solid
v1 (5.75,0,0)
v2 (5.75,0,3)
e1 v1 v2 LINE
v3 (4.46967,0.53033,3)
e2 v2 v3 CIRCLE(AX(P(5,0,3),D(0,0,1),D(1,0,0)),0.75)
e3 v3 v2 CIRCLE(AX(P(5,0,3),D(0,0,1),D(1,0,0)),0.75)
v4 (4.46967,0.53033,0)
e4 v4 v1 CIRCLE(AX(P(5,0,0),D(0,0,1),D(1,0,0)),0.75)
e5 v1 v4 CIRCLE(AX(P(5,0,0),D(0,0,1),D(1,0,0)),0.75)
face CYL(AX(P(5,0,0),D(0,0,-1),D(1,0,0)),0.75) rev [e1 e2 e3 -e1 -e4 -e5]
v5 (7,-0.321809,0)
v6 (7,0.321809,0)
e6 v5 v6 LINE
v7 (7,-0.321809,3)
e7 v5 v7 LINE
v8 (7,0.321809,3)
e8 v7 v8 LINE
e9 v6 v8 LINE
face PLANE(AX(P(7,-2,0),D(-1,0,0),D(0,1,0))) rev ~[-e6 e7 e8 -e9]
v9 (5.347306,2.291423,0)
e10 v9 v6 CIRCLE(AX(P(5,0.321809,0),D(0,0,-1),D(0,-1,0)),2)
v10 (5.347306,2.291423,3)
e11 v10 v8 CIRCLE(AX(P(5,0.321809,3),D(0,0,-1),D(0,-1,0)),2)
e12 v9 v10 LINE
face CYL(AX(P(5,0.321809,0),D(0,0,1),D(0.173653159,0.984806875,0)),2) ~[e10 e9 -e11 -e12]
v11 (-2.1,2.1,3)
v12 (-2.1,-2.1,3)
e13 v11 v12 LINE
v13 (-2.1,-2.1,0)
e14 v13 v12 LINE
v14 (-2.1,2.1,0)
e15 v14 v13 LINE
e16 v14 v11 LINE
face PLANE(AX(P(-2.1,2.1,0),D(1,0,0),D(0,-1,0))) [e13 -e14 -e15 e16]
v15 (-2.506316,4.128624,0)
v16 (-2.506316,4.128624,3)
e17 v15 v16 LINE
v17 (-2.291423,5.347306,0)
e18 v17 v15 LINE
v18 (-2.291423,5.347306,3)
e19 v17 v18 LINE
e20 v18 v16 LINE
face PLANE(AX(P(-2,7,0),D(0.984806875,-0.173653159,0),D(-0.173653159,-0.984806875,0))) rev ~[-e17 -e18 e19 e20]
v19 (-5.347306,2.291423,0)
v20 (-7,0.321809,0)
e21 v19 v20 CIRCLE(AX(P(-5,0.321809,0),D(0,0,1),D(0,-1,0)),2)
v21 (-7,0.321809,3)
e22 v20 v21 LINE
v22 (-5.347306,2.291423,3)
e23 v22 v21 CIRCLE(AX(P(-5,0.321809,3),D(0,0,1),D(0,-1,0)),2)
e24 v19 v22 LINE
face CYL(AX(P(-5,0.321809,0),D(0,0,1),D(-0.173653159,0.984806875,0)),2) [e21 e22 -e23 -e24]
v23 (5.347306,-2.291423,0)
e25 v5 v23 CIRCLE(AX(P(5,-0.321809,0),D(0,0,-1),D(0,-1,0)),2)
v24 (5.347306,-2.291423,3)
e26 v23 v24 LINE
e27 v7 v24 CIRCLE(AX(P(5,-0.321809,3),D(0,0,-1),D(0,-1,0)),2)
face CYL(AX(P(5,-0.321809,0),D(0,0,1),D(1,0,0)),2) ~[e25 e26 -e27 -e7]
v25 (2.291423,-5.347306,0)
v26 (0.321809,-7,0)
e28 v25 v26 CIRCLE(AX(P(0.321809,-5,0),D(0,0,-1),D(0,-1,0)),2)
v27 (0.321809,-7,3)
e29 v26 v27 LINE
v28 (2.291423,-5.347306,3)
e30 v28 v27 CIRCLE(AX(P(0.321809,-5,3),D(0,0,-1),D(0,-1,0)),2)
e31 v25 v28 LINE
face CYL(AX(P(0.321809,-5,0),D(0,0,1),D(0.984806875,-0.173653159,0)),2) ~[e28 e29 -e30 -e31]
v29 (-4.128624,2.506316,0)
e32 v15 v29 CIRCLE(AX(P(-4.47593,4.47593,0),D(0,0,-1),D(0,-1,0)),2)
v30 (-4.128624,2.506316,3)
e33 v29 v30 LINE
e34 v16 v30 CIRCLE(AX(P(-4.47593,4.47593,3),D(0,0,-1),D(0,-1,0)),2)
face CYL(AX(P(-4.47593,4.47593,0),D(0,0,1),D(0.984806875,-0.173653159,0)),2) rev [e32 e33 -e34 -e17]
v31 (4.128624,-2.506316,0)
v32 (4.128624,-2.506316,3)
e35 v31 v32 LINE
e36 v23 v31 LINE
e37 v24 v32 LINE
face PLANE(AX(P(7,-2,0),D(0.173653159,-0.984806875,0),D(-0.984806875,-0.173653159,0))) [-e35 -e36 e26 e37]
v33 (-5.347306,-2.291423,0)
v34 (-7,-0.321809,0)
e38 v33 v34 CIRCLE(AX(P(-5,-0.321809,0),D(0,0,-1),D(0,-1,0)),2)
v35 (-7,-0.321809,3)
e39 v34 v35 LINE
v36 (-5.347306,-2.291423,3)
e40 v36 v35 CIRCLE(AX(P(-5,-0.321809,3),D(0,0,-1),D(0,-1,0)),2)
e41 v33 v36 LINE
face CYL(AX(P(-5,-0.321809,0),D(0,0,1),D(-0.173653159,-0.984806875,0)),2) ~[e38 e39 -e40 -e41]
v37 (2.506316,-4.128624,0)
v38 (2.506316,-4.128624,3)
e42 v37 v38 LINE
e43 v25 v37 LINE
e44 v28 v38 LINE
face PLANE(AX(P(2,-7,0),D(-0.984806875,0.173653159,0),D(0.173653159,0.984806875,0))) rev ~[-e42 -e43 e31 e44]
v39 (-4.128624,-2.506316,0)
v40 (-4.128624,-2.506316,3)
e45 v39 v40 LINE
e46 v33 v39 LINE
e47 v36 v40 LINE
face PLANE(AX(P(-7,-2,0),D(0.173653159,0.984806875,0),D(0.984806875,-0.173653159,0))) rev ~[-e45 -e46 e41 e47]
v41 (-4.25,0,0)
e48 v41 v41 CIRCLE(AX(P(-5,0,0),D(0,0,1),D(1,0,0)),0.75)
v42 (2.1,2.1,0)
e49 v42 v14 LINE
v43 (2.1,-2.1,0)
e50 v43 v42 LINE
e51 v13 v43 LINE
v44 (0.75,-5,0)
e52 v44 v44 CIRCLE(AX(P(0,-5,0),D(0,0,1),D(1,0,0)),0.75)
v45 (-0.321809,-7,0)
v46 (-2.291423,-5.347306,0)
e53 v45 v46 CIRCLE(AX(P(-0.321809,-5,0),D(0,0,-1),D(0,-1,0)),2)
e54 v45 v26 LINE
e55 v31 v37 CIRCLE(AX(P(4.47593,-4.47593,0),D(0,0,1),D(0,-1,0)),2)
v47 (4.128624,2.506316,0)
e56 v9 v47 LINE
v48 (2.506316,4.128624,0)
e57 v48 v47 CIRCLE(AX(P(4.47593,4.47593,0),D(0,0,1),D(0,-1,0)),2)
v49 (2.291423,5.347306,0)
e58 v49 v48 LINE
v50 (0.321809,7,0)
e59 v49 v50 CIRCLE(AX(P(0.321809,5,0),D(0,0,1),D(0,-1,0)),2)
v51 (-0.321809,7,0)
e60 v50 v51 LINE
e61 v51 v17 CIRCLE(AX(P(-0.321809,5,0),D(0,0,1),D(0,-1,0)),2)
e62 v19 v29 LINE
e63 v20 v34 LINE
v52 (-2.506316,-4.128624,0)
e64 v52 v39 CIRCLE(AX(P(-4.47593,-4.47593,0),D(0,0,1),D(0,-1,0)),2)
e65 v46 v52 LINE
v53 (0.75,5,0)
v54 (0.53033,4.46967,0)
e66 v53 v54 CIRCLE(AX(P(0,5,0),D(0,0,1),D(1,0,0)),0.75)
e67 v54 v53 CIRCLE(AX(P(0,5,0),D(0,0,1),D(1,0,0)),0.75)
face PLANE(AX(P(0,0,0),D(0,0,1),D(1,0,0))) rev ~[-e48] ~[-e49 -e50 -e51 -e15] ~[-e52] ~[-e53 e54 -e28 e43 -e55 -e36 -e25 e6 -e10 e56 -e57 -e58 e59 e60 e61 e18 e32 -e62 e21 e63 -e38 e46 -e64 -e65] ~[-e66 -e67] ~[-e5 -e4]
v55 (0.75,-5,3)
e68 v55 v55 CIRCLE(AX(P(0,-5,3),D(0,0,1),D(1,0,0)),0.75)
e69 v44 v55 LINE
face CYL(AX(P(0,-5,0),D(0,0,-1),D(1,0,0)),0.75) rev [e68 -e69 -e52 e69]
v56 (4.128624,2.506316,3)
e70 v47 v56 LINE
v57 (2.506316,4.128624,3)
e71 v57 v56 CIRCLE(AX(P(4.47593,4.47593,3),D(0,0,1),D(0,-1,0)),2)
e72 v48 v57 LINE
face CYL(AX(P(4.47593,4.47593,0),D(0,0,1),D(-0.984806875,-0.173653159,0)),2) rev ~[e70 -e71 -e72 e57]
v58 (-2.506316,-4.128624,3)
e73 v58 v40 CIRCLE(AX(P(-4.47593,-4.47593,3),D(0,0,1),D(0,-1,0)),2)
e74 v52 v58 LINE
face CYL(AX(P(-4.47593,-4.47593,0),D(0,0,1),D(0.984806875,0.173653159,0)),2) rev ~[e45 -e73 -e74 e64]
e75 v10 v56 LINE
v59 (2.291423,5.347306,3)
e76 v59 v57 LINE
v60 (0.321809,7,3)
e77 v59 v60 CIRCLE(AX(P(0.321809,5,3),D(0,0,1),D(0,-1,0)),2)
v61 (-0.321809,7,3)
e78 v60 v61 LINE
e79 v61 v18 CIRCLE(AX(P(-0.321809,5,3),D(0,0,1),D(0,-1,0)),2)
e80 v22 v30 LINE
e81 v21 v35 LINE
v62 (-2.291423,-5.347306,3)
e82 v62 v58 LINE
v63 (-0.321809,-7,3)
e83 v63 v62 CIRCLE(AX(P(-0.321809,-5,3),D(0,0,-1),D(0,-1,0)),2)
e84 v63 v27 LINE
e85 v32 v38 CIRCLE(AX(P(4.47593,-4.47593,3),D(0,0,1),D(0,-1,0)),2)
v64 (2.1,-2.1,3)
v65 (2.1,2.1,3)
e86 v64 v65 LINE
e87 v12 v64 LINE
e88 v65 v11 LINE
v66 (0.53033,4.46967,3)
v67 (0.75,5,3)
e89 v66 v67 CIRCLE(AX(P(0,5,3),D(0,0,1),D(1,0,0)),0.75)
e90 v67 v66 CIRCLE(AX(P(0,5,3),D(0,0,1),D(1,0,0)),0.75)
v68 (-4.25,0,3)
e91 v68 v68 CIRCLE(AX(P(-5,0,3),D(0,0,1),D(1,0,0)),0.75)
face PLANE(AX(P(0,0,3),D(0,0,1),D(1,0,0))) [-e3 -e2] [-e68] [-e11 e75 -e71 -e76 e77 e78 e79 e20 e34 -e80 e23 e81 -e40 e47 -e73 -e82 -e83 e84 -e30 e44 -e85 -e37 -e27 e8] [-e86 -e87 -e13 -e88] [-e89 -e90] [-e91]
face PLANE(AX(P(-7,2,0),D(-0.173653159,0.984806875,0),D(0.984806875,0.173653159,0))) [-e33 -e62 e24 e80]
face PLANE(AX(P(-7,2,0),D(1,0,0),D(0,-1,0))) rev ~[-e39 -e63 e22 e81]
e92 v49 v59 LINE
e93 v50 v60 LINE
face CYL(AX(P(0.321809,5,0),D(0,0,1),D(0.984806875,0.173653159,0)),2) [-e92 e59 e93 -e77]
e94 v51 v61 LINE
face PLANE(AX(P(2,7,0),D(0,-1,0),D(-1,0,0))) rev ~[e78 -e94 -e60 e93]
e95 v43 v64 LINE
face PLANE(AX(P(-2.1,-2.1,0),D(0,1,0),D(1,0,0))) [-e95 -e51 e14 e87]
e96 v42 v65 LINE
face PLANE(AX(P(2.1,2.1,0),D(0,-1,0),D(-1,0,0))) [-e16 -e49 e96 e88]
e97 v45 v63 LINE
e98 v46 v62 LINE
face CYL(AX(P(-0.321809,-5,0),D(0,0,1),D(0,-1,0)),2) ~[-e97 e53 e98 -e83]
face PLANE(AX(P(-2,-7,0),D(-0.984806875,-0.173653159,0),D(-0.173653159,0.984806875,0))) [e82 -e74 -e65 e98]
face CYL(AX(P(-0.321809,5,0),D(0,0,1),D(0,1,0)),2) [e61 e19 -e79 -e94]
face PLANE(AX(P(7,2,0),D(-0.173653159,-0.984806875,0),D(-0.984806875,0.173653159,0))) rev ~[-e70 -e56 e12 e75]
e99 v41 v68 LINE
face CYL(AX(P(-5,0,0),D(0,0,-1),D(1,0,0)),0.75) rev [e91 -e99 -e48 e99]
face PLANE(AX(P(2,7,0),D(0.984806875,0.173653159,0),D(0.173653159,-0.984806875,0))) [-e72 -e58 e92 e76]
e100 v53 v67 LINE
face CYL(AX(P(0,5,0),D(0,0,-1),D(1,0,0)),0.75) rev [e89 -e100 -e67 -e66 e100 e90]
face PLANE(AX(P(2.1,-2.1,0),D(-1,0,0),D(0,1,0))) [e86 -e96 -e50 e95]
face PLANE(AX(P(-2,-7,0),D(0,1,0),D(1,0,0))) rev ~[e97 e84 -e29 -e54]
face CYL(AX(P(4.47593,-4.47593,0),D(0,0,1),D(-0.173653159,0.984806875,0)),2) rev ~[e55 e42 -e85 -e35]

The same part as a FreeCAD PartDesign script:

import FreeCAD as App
import Part
import Sketcher
Q = App.Units.Quantity


def edges_at(feature, points):
    """Names of the edges that pass closest to the given points."""
    edges = feature.Shape.Edges
    near = lambda p: min(range(len(edges)), key=lambda i: edges[i].distToShape(Part.Vertex(*p))[0])
    return sorted({f"Edge{near(p) + 1}" for p in points})

doc = App.newDocument("Part")
body = doc.addObject("PartDesign::Body", "Body")

# Sketch on XY plane
sketch1 = doc.addObject("Sketcher::SketchObject", "Sketch")
body.addObject(sketch1)
sketch1.AttachmentSupport = (doc.XY_Plane, [""])
sketch1.MapMode = "FlatFace"
sketch1.addGeometry(Part.LineSegment(App.Vector(2.7, 2.7, 0), App.Vector(2, 7, 0)), False)
sketch1.addGeometry(Part.LineSegment(App.Vector(2, 7, 0), App.Vector(-2, 7, 0)), False)
sketch1.addGeometry(Part.LineSegment(App.Vector(-2, 7, 0), App.Vector(-2.7, 2.7, 0)), False)
sketch1.addGeometry(Part.LineSegment(App.Vector(-2.7, 2.7, 0), App.Vector(-7, 2, 0)), False)
sketch1.addGeometry(Part.LineSegment(App.Vector(-7, 2, 0), App.Vector(-7, -2, 0)), False)
sketch1.addGeometry(Part.LineSegment(App.Vector(-7, -2, 0), App.Vector(-2.7, -2.7, 0)), False)
sketch1.addGeometry(Part.LineSegment(App.Vector(-2.7, -2.7, 0), App.Vector(-2, -7, 0)), False)
sketch1.addGeometry(Part.LineSegment(App.Vector(-2, -7, 0), App.Vector(2, -7, 0)), False)
sketch1.addGeometry(Part.LineSegment(App.Vector(2, -7, 0), App.Vector(2.7, -2.7, 0)), False)
sketch1.addGeometry(Part.LineSegment(App.Vector(2.7, -2.7, 0), App.Vector(7, -2, 0)), False)
sketch1.addGeometry(Part.LineSegment(App.Vector(7, -2, 0), App.Vector(7, 2, 0)), False)
sketch1.addGeometry(Part.LineSegment(App.Vector(7, 2, 0), App.Vector(2.7, 2.7, 0)), False)
sketch1.addGeometry(Part.LineSegment(App.Vector(-2.1, 2.1, 0), App.Vector(2.1, 2.1, 0)), False)
sketch1.addGeometry(Part.LineSegment(App.Vector(2.1, 2.1, 0), App.Vector(2.1, -2.1, 0)), False)
sketch1.addGeometry(Part.LineSegment(App.Vector(2.1, -2.1, 0), App.Vector(-2.1, -2.1, 0)), False)
sketch1.addGeometry(Part.LineSegment(App.Vector(-2.1, -2.1, 0), App.Vector(-2.1, 2.1, 0)), False)
sketch1.addGeometry(Part.Circle(App.Vector(0, 5, 0), App.Vector(0, 0, 1), 0.8), False)
sketch1.addGeometry(Part.Circle(App.Vector(5, 0, 0), App.Vector(0, 0, 1), 0.8), False)
sketch1.addGeometry(Part.Circle(App.Vector(0, -5, 0), App.Vector(0, 0, 1), 0.8), False)
sketch1.addGeometry(Part.Circle(App.Vector(-5, 0, 0), App.Vector(0, 0, 1), 0.8), False)
sketch1.addConstraint(Sketcher.Constraint("Coincident", 0, 2, 1, 1))
sketch1.addConstraint(Sketcher.Constraint("Coincident", 1, 2, 2, 1))
sketch1.addConstraint(Sketcher.Constraint("Coincident", 2, 2, 3, 1))
sketch1.addConstraint(Sketcher.Constraint("Coincident", 3, 2, 4, 1))
sketch1.addConstraint(Sketcher.Constraint("Coincident", 4, 2, 5, 1))
sketch1.addConstraint(Sketcher.Constraint("Coincident", 5, 2, 6, 1))
sketch1.addConstraint(Sketcher.Constraint("Coincident", 6, 2, 7, 1))
sketch1.addConstraint(Sketcher.Constraint("Coincident", 7, 2, 8, 1))
sketch1.addConstraint(Sketcher.Constraint("Coincident", 8, 2, 9, 1))
sketch1.addConstraint(Sketcher.Constraint("Coincident", 9, 2, 10, 1))
sketch1.addConstraint(Sketcher.Constraint("Coincident", 10, 2, 11, 1))
sketch1.addConstraint(Sketcher.Constraint("Coincident", 11, 2, 0, 1))
sketch1.addConstraint(Sketcher.Constraint("Coincident", 12, 2, 13, 1))
sketch1.addConstraint(Sketcher.Constraint("Coincident", 13, 2, 14, 1))
sketch1.addConstraint(Sketcher.Constraint("Coincident", 14, 2, 15, 1))
sketch1.addConstraint(Sketcher.Constraint("Coincident", 15, 2, 12, 1))
sketch1.addConstraint(Sketcher.Constraint("Horizontal", 1))
sketch1.addConstraint(Sketcher.Constraint("Vertical", 4))
sketch1.addConstraint(Sketcher.Constraint("Horizontal", 7))
sketch1.addConstraint(Sketcher.Constraint("Vertical", 10))
sketch1.addConstraint(Sketcher.Constraint("Horizontal", 12))
sketch1.addConstraint(Sketcher.Constraint("Vertical", 13))
sketch1.addConstraint(Sketcher.Constraint("Horizontal", 14))
sketch1.addConstraint(Sketcher.Constraint("Vertical", 15))
sketch1.addConstraint(Sketcher.Constraint("Equal", 16, 17))
sketch1.addConstraint(Sketcher.Constraint("Equal", 17, 18))
sketch1.addConstraint(Sketcher.Constraint("Equal", 18, 19))
sketch1.addConstraint(Sketcher.Constraint("Symmetric", 16, 3, 18, 3, -1, 1))
sketch1.addConstraint(Sketcher.Constraint("Symmetric", 17, 3, 19, 3, -1, 1))
sketch1.addConstraint(Sketcher.Constraint("Symmetric", 0, 2, 6, 2, -1, 1))
sketch1.addConstraint(Sketcher.Constraint("Symmetric", 2, 2, 8, 2, -1, 1))
sketch1.addConstraint(Sketcher.Constraint("Symmetric", 3, 2, 9, 2, -1, 1))
sketch1.addConstraint(Sketcher.Constraint("Symmetric", 5, 2, 11, 2, -1, 1))
sketch1.addConstraint(Sketcher.Constraint("Symmetric", 12, 2, 14, 2, -1, 1))
sketch1.addConstraint(Sketcher.Constraint("Symmetric", 5, 2, 8, 2, -2))
sketch1.addConstraint(Sketcher.Constraint("PointOnObject", 16, 3, -2))
sketch1.addConstraint(Sketcher.Constraint("PointOnObject", 17, 3, -1))
sketch1.addConstraint(Sketcher.Constraint("Perpendicular", 0, 3))
sketch1.addConstraint(Sketcher.Constraint("Perpendicular", 2, 5))
sketch1.addConstraint(Sketcher.Constraint("Perpendicular", 5, 8))
sketch1.addConstraint(Sketcher.Constraint("Perpendicular", 8, 11))
sketch1.addConstraint(Sketcher.Constraint("Horizontal", 4, 2, 9, 2))
sketch1.addConstraint(Sketcher.Constraint("Equal", 7, 4))
sketch1.addConstraint(Sketcher.Constraint("Equal", 14, 13))
sketch1.addConstraint(Sketcher.Constraint("Equal", 2, 3))
sketch1.addConstraint(Sketcher.Constraint("Diameter", 16, 1.5))
sketch1.addConstraint(Sketcher.Constraint("DistanceX", 1, 2, 1, 1, 4.0))
sketch1.addConstraint(Sketcher.Constraint("Angle", 0, Q("100.0003 deg")))
sketch1.addConstraint(Sketcher.Constraint("DistanceX", 12, 1, 12, 2, 4.2))
sketch1.addConstraint(Sketcher.Constraint("DistanceY", -1, 1, 16, 3, 5.0))
sketch1.addConstraint(Sketcher.Constraint("DistanceX", -1, 1, 17, 3, 5.0))
sketch1.addConstraint(Sketcher.Constraint("DistanceY", 16, 3, 0, 2, 2.0))
pad1 = doc.addObject("PartDesign::Pad", "Pad")
body.addObject(pad1)
pad1.Profile = sketch1
pad1.Length = 3
doc.recompute()

fillet = doc.addObject("PartDesign::Fillet", "Fillet")
body.addObject(fillet)
fillet.Base = (pad1, edges_at(pad1, [
    (2, 7, 1.5),
    (-2, 7, 1.5),
    (-7, 2, 1.5),
    (-7, -2, 1.5),
    (-2, -7, 1.5),
    (-2.749, -2.749, 1.5),
    (-2.749, 2.749, 1.5),
    (2.749, 2.749, 1.5),
    (7, 2, 1.5),
    (7, -2, 1.5),
    (2.749, -2.749, 1.5),
    (2, -7, 1.5),
]))
fillet.Radius = 2

doc.recompute()
